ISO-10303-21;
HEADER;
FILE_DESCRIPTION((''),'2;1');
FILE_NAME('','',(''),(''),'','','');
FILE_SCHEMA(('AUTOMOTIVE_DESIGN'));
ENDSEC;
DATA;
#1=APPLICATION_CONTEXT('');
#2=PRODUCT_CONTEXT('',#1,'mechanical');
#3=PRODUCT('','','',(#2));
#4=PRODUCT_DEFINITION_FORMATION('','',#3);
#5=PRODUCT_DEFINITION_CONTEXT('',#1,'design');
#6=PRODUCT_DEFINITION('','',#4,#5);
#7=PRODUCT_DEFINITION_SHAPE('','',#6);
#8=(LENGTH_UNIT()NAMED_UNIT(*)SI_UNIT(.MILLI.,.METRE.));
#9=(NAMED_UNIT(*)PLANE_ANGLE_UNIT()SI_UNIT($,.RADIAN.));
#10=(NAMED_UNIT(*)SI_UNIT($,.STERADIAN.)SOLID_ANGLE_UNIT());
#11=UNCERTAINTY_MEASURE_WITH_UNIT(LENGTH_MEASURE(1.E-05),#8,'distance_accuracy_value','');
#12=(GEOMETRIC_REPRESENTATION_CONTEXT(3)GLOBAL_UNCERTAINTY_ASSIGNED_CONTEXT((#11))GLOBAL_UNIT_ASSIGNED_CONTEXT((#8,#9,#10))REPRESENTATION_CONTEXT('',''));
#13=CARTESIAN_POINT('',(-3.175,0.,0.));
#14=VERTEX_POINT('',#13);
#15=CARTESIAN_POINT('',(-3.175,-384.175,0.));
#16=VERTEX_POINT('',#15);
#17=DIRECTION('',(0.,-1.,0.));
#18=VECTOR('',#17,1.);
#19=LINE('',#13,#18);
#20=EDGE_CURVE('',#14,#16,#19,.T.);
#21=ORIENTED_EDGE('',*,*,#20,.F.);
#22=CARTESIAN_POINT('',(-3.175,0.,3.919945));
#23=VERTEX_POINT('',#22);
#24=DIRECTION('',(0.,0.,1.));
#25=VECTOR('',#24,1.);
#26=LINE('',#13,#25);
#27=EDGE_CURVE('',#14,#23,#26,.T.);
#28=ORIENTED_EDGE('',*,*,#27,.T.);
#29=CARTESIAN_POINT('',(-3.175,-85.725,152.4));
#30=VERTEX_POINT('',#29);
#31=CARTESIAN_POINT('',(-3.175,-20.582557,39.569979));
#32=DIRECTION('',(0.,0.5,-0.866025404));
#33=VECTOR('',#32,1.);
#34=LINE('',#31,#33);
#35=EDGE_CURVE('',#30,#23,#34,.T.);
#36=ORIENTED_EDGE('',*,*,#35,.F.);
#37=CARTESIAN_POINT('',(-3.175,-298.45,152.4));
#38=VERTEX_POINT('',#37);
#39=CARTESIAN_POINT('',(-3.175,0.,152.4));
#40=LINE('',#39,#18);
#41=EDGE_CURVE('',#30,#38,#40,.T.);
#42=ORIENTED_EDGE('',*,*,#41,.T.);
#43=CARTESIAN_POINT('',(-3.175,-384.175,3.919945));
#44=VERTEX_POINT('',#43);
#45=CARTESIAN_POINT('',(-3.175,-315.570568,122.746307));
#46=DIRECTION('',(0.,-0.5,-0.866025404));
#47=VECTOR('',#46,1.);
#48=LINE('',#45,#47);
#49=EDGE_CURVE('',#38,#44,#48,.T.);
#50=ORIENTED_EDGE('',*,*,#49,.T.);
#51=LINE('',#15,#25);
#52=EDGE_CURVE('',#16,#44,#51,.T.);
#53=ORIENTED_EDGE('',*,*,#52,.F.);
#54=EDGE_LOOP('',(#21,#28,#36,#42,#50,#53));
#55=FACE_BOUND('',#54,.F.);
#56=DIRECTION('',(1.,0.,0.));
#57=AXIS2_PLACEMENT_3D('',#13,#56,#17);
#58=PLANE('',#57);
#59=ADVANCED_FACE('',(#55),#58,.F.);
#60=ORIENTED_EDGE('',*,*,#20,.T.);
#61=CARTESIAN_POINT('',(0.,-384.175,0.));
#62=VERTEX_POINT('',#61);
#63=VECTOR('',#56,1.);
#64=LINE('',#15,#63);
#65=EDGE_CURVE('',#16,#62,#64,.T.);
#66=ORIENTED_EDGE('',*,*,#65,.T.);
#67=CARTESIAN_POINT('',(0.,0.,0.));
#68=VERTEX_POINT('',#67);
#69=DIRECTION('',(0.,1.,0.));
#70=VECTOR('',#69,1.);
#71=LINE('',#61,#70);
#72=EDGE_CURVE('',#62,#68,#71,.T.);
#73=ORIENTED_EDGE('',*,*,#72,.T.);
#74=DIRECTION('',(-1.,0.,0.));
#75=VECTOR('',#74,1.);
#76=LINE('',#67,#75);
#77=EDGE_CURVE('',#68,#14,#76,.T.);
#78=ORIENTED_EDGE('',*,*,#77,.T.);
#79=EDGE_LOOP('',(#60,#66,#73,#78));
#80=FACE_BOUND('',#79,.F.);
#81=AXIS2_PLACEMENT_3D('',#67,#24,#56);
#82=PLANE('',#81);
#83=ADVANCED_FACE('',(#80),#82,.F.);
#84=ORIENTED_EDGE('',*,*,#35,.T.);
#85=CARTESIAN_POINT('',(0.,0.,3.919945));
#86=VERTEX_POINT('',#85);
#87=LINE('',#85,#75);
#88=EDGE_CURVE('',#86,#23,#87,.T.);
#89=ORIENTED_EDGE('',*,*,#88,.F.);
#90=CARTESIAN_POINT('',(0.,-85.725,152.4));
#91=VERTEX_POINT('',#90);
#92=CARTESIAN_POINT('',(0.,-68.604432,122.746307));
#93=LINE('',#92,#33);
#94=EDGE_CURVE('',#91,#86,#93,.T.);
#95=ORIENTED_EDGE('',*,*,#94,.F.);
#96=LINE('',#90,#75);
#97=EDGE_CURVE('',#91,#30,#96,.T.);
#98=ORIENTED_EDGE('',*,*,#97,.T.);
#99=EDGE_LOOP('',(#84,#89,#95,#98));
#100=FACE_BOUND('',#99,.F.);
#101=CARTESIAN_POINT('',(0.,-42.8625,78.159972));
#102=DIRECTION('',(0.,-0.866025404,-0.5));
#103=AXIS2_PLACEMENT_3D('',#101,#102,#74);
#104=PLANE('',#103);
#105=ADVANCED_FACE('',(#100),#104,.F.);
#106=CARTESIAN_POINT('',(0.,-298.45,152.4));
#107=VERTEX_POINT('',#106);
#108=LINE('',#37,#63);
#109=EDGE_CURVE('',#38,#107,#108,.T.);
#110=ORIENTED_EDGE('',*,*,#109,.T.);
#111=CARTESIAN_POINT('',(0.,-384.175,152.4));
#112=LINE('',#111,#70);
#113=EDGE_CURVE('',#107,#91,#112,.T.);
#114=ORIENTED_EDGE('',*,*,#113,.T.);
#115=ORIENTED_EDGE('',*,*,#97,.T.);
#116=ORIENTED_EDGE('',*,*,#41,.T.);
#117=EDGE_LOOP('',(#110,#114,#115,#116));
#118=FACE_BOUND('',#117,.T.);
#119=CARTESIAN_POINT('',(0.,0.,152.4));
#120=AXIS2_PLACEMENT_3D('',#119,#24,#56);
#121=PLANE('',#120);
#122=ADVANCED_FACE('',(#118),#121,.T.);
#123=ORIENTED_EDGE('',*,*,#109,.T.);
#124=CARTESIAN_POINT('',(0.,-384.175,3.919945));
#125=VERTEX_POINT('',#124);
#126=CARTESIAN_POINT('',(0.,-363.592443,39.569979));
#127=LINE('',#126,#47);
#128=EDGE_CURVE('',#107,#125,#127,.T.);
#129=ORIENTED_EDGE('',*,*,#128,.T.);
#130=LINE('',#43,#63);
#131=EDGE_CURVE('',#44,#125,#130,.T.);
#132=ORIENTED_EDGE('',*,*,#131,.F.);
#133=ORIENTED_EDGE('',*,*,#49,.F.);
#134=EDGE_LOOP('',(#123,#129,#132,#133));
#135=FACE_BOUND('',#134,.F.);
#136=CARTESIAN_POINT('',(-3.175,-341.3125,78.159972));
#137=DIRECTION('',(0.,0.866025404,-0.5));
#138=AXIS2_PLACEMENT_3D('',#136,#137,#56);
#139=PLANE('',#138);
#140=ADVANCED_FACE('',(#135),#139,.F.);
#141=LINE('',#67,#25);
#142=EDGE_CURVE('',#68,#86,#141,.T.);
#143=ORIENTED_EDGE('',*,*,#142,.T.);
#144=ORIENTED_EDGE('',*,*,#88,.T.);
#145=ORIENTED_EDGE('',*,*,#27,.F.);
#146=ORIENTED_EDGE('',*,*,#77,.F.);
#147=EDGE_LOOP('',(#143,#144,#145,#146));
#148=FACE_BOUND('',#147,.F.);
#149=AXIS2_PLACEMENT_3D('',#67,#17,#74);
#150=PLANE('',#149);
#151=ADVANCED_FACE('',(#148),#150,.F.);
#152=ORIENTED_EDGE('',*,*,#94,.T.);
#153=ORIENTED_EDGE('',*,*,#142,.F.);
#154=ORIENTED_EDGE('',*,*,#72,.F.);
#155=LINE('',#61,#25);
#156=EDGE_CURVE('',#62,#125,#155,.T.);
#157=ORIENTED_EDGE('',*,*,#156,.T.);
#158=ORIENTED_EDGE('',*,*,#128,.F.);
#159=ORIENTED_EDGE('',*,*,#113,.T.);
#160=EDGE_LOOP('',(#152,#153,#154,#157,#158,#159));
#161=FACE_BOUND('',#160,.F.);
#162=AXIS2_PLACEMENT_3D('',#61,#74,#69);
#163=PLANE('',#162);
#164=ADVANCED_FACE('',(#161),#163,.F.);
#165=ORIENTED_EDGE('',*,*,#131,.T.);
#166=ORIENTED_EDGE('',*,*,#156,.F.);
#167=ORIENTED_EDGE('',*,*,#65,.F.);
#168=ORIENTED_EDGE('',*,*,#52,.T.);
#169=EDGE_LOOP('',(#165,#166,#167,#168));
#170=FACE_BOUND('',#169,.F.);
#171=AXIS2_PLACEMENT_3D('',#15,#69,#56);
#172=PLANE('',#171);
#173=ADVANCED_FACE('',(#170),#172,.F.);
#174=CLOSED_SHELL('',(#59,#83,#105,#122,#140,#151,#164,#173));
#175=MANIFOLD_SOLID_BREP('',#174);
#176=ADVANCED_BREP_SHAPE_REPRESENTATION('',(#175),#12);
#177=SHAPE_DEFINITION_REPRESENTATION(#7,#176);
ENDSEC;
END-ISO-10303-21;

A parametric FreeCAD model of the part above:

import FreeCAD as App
import Part
import Sketcher

V = App.Vector
Q = App.Units.Quantity


def edges_at(feature, points):
    """Names of the edges that pass closest to the given points."""
    edges = feature.Shape.Edges
    near = lambda p: min(range(len(edges)), key=lambda i: edges[i].distToShape(Part.Vertex(*p))[0])
    return sorted({f"Edge{near(p) + 1}" for p in points})


def add_polygon(sketch, points):
    """Adds a closed chain of lines whose ends are joined by coincident constraints."""
    first, n = sketch.GeometryCount, len(points)
    for a, b in zip(points, points[1:] + points[:1]):
        sketch.addGeometry(Part.LineSegment(App.Vector(*a, 0), App.Vector(*b, 0)), False)
    for i in range(n):
        sketch.addConstraint(Sketcher.Constraint("Coincident", first + i, 2, first + (i + 1) % n, 1))

doc = App.newDocument("Part")
body = doc.addObject("PartDesign::Body", "Body")

sketch1 = doc.addObject("Sketcher::SketchObject", "Sketch")
body.addObject(sketch1)
sketch1.AttachmentSupport = (doc.XY_Plane, [""])
sketch1.MapMode = "FlatFace"
add_polygon(sketch1, [(0, -384.2), (0, 0), (-3.2, 0), (-3.2, -384.2)])
sketch1.addConstraint([
    Sketcher.Constraint("Vertical", 0),
    Sketcher.Constraint("Horizontal", 1),
    Sketcher.Constraint("Vertical", 2),
    Sketcher.Constraint("Horizontal", 3),
    Sketcher.Constraint("Coincident", 0, 2, -1, 1),
    Sketcher.Constraint("DistanceX", 1, 2, 1, 1, Q("0.125 in")),
    Sketcher.Constraint("DistanceY", 0, 1, 0, 2, Q("15.125 in")),
])
pad1 = doc.addObject("PartDesign::Pad", "Pad")
body.addObject(pad1)
pad1.Profile = sketch1
pad1.Length = Q("6 in")
doc.recompute()

chamfer = doc.addObject("PartDesign::Chamfer", "Chamfer")
body.addObject(chamfer)
chamfer.Base = (pad1, edges_at(pad1, [(-1.587, -384.175, 152.4)]))
chamfer.ChamferType = "Distance and Angle"
chamfer.Size = Q("3.375 in")
chamfer.Angle = 60
chamfer.FlipDirection = True
doc.recompute()

chamfer2 = doc.addObject("PartDesign::Chamfer", "Chamfer001")
body.addObject(chamfer2)
chamfer2.Base = (chamfer, edges_at(chamfer, [(-1.587, 0, 152.4)]))
chamfer2.ChamferType = "Distance and Angle"
chamfer2.Size = Q("3.375 in")
chamfer2.Angle = 60

doc.recompute()
